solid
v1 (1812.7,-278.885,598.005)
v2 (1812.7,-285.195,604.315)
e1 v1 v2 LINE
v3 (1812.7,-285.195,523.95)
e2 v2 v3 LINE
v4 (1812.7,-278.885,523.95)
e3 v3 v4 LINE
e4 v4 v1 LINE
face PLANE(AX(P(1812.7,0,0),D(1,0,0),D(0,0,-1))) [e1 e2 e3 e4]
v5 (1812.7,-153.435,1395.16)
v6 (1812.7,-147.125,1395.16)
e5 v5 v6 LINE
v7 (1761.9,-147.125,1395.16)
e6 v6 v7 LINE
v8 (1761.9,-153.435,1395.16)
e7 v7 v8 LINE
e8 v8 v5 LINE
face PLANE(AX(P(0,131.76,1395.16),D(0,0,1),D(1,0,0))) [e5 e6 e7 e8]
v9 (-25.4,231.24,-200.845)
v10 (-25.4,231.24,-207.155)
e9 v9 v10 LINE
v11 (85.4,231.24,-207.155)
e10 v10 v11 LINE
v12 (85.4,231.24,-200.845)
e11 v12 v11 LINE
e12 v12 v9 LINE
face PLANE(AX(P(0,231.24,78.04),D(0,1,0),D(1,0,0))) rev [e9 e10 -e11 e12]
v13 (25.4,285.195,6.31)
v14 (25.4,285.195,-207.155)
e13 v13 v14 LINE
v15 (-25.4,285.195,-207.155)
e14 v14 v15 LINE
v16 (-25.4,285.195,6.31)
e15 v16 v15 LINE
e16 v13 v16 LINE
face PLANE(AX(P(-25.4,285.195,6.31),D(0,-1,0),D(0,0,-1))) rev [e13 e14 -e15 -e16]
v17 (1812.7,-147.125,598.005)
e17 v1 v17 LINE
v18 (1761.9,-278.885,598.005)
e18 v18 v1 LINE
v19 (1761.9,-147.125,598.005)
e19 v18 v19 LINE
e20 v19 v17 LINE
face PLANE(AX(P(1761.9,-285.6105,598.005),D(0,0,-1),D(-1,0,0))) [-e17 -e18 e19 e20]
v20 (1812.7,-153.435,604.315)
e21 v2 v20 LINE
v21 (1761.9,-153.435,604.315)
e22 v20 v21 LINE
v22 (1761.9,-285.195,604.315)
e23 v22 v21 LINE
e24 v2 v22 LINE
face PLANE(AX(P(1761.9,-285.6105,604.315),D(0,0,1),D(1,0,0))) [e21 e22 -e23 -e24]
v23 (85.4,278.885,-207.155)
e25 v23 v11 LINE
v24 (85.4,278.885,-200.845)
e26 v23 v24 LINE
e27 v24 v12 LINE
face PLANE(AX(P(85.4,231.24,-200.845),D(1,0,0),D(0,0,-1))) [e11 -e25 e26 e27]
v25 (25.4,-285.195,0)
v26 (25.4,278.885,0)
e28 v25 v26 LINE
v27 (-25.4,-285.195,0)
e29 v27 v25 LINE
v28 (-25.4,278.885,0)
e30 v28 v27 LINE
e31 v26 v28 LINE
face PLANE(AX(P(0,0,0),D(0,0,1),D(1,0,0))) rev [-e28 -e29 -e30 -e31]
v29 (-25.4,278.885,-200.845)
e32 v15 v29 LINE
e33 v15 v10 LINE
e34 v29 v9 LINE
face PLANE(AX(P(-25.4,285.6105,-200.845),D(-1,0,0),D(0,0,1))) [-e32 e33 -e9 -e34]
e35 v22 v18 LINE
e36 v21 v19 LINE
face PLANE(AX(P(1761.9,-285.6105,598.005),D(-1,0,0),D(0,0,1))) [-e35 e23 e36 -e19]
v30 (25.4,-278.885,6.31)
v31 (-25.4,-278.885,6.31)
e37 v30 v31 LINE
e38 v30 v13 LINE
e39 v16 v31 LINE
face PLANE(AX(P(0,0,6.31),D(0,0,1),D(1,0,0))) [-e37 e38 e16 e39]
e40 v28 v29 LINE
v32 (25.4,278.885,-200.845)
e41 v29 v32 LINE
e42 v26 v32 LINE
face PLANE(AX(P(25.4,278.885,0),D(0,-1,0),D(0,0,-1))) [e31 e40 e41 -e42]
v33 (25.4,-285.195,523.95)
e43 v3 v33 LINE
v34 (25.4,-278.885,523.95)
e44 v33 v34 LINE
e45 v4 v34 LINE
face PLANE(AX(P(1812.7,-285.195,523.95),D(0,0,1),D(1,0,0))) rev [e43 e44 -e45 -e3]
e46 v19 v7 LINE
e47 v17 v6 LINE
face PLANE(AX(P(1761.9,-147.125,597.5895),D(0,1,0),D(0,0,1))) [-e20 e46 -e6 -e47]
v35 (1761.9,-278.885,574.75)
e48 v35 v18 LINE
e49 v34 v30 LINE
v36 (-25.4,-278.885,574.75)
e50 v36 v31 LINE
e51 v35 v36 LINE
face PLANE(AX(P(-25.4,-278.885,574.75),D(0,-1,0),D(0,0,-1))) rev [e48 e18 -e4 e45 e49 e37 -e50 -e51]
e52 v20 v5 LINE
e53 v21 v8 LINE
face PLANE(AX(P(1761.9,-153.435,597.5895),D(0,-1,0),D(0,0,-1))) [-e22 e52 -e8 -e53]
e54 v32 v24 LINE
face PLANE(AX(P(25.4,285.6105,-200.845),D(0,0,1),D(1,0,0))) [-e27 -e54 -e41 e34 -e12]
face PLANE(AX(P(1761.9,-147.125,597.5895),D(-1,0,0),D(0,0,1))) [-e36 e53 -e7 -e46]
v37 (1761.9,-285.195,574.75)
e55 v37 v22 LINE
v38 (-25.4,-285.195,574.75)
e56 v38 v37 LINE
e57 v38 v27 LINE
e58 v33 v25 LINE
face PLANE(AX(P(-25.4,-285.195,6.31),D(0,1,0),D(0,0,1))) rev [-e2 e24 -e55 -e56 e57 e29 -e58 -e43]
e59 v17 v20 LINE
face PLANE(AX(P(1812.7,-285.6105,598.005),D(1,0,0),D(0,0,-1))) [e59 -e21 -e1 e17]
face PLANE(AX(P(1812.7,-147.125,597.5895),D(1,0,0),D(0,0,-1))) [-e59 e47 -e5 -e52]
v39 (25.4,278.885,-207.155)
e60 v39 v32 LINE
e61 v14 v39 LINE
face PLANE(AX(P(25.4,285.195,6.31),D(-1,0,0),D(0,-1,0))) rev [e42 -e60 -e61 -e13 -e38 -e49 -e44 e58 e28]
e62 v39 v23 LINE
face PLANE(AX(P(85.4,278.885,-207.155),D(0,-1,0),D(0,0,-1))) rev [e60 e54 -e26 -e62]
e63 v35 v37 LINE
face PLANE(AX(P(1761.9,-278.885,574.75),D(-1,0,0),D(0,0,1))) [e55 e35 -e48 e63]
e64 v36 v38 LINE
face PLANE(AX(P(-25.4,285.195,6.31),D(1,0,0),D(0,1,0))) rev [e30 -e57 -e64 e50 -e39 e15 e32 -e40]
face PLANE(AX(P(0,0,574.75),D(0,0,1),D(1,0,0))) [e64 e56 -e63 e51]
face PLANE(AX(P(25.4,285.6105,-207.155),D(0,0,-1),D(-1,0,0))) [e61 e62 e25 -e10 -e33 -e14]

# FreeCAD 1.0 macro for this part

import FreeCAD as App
import Part
import Sketcher

V = App.Vector


def add_polygon(sketch, points):
    """Adds a closed chain of lines whose ends are joined by coincident constraints."""
    first, n = sketch.GeometryCount, len(points)
    for a, b in zip(points, points[1:] + points[:1]):
        sketch.addGeometry(Part.LineSegment(App.Vector(*a, 0), App.Vector(*b, 0)), False)
    for i in range(n):
        sketch.addConstraint(Sketcher.Constraint("Coincident", first + i, 2, first + (i + 1) % n, 1))

doc = App.newDocument("Part")
params = doc.addObject("Spreadsheet::Sheet", "Params")
for row, (alias, value) in enumerate([
    ("sketch1_width", "50.8 mm"),
    ("sketch1_height", "570.39 mm"),
    ("pad1_length", "6.31 mm"),
    ("sketch2_width", "50.8 mm"),
    ("sketch2_height", "6.31 mm"),
    ("pad2_length", "568.44 mm"),
    ("sketch3_height", "50.8 mm"),
    ("sketch3_width", "6.31 mm"),
    ("pad3_length", "1787.3 mm"),
    ("sketch4_width", "50.8 mm"),
    ("sketch4_height", "6.31 mm"),
    ("sketch5_height", "204 mm"),
    ("sketch5_width", "50.8 mm"),
    ("sketch6_width", "60 mm"),
    ("pad4_length", "6.31 mm"),
    ("sketch7_width", "60 mm"),
    ("sketch7_height", "6.31 mm"),
    ("pocket1_length", "6.31 mm"),
    ("sketch8_width", "50.8 mm"),
    ("sketch8_height", "6.31 mm"),
    ("sketch9_height", "794 mm"),
    ("sketch9_width", "131.76 mm"),
    ("sketch9_height2", "26.41 mm"),
], start=1):
    params.set(f"A{row}", alias)
    params.set(f"B{row}", "=" + value)
    params.setAlias(f"B{row}", alias)

body = doc.addObject("PartDesign::Body", "Body")

# Sketch on XY plane
sketch1 = body.newObject("Sketcher::SketchObject", "Sketch")
sketch1.AttachmentSupport = (doc.getObject("XY_Plane"), [""])
sketch1.MapMode = "FlatFace"
add_polygon(sketch1, [(-25.4, 285.195), (-25.4, -285.195), (25.4, -285.195), (25.4, 285.195)])  # lines 0-3
sketch1.addConstraint([
    Sketcher.Constraint("Vertical", 0),
    Sketcher.Constraint("Horizontal", 1),
    Sketcher.Constraint("Vertical", 2),
    Sketcher.Constraint("Horizontal", 3),
    Sketcher.Constraint("Symmetric", 0, 2, 2, 2, -1, 1),
    Sketcher.Constraint("DistanceX", 1, 1, 1, 2, 50.8),
    Sketcher.Constraint("DistanceY", 0, 2, 0, 1, 570.39),
])
sketch1.setExpression("Constraints[9]", "Params.sketch1_width")
sketch1.setExpression("Constraints[10]", "Params.sketch1_height")
pad1 = body.newObject("PartDesign::Pad", "Pad")
pad1.Profile = sketch1
pad1.setExpression("Length", "Params.pad1_length")

# Sketch on XY plane
sketch2 = body.newObject("Sketcher::SketchObject", "Sketch001")
sketch2.AttachmentSupport = (doc.getObject("XY_Plane"), [""])
sketch2.MapMode = "FlatFace"
sketch2.AttachmentOffset = App.Placement(V(0, 0, 6.31), App.Rotation())
add_polygon(sketch2, [(-25.4, -278.885), (-25.4, -285.195), (25.4, -285.195), (25.4, -278.885)])  # lines 0-3
sketch2.addConstraint([
    Sketcher.Constraint("Vertical", 0),
    Sketcher.Constraint("Horizontal", 1),
    Sketcher.Constraint("Vertical", 2),
    Sketcher.Constraint("Horizontal", 3),
    Sketcher.Constraint("DistanceX", 1, 1, 1, 2, 50.8),
    Sketcher.Constraint("DistanceY", 0, 2, 0, 1, 6.31),
    Sketcher.Constraint("DistanceX", 0, 2, -1, 1, 25.4),
    Sketcher.Constraint("DistanceY", 0, 2, -1, 1, 285.195),
])
sketch2.setExpression("Constraints[8]", "Params.sketch2_width")
sketch2.setExpression("Constraints[9]", "Params.sketch2_height")
pad2 = body.newObject("PartDesign::Pad", "Pad001")
pad2.Profile = sketch2
pad2.setExpression("Length", "Params.pad2_length")

# Sketch on YZ plane
sketch3 = body.newObject("Sketcher::SketchObject", "Sketch002")
sketch3.AttachmentSupport = (doc.getObject("YZ_Plane"), [""])
sketch3.MapMode = "FlatFace"
sketch3.AttachmentOffset = App.Placement(V(0, 0, 25.4), App.Rotation())
add_polygon(sketch3, [(-278.885, 574.75), (-285.195, 574.75), (-285.195, 523.95), (-278.885, 523.95)])  # lines 0-3
sketch3.addConstraint([
    Sketcher.Constraint("Horizontal", 0),
    Sketcher.Constraint("Vertical", 1),
    Sketcher.Constraint("Horizontal", 2),
    Sketcher.Constraint("Vertical", 3),
    Sketcher.Constraint("DistanceY", 1, 2, 1, 1, 50.8),
    Sketcher.Constraint("DistanceX", 0, 2, 0, 1, 6.31),
    Sketcher.Constraint("DistanceY", -1, 1, 0, 2, 574.75),
    Sketcher.Constraint("DistanceX", 0, 2, -1, 1, 285.195),
])
sketch3.setExpression("Constraints[8]", "Params.sketch3_height")
sketch3.setExpression("Constraints[9]", "Params.sketch3_width")
pad3 = body.newObject("PartDesign::Pad", "Pad002")
pad3.Profile = sketch3
pad3.setExpression("Length", "Params.pad3_length")

# Sketch on XY plane
sketch4 = body.newObject("Sketcher::SketchObject", "Sketch003")
sketch4.AttachmentSupport = (doc.getObject("XY_Plane"), [""])
sketch4.MapMode = "FlatFace"
add_polygon(sketch4, [(25.4, 285.195), (25.4, 278.885), (-25.4, 278.885), (-25.4, 285.195)])  # lines 0-3
sketch4.addConstraint([
    Sketcher.Constraint("Vertical", 0),
    Sketcher.Constraint("Horizontal", 1),
    Sketcher.Constraint("Vertical", 2),
    Sketcher.Constraint("Horizontal", 3),
    Sketcher.Constraint("DistanceX", 1, 2, 1, 1, 50.8),
    Sketcher.Constraint("DistanceY", 0, 2, 0, 1, 6.31),
    Sketcher.Constraint("DistanceX", -1, 1, 0, 2, 25.4),
    Sketcher.Constraint("DistanceY", -1, 1, 0, 2, 278.885),
])
sketch4.setExpression("Constraints[8]", "Params.sketch4_width")
sketch4.setExpression("Constraints[9]", "Params.sketch4_height")

# Sketch on YZ plane
sketch5 = body.newObject("Sketcher::SketchObject", "Sketch004")
sketch5.AttachmentSupport = (doc.getObject("YZ_Plane"), [""])
sketch5.MapMode = "FlatFace"
sketch5.addGeometry([
    Part.LineSegment(V(282.04, 0, 0), V(282.04, -204, 0)),
    Part.LineSegment(V(282.04, -204, 0), V(231.24, -204, 0)),
], False)
sketch5.addConstraint([
    Sketcher.Constraint("Coincident", 0, 2, 1, 1),
    Sketcher.Constraint("Vertical", 0),
    Sketcher.Constraint("Horizontal", 1),
    Sketcher.Constraint("PointOnObject", 0, 1, -1),
    Sketcher.Constraint("DistanceY", 0, 2, 0, 1, 204.0),
    Sketcher.Constraint("DistanceX", 1, 2, 1, 1, 50.8),
    Sketcher.Constraint("DistanceX", -1, 1, 0, 1, 282.04),
])
sketch5.setExpression("Constraints[4]", "Params.sketch5_height")
sketch5.setExpression("Constraints[5]", "Params.sketch5_width")
doc.recompute()

additivepipe = body.newObject("PartDesign::AdditivePipe", "AdditivePipe")
additivepipe.Profile = sketch4
additivepipe.Spine = (sketch5, ["Edge1", "Edge2"])
additivepipe.Transition = "Right corner"

# Sketch on XY plane
sketch6 = body.newObject("Sketcher::SketchObject", "Sketch005")
sketch6.AttachmentSupport = (doc.getObject("XY_Plane"), [""])
sketch6.MapMode = "FlatFace"
sketch6.AttachmentOffset = App.Placement(V(0, 0, -207.155), App.Rotation())
add_polygon(sketch6, [(85.4, 285.195), (85.4, 231.24), (25.4, 231.24), (25.4, 285.195)])  # lines 0-3
sketch6.addConstraint([
    Sketcher.Constraint("Vertical", 0),
    Sketcher.Constraint("Horizontal", 1),
    Sketcher.Constraint("Vertical", 2),
    Sketcher.Constraint("Horizontal", 3),
    Sketcher.Constraint("DistanceX", 1, 2, 1, 1, 60.0),
    Sketcher.Constraint("DistanceX", -1, 1, 0, 2, 85.4),
    Sketcher.Constraint("DistanceY", 0, 2, 0, 1, 53.955),
    Sketcher.Constraint("DistanceY", -1, 1, 0, 2, 231.24),
])
sketch6.setExpression("Constraints[8]", "Params.sketch6_width")
pad4 = body.newObject("PartDesign::Pad", "Pad003")
pad4.Profile = sketch6
pad4.setExpression("Length", "Params.pad4_length")

# Sketch on XY plane
sketch7 = body.newObject("Sketcher::SketchObject", "Sketch006")
sketch7.AttachmentSupport = (doc.getObject("XY_Plane"), [""])
sketch7.MapMode = "FlatFace"
sketch7.AttachmentOffset = App.Placement(V(0, 0, -200.845), App.Rotation())
add_polygon(sketch7, [(25.4, 285.195), (25.4, 278.885), (85.4, 278.885), (85.4, 285.195)])  # lines 0-3
sketch7.addConstraint([
    Sketcher.Constraint("Vertical", 0),
    Sketcher.Constraint("Horizontal", 1),
    Sketcher.Constraint("Vertical", 2),
    Sketcher.Constraint("Horizontal", 3),
    Sketcher.Constraint("DistanceX", 1, 1, 1, 2, 60.0),
    Sketcher.Constraint("DistanceY", 0, 2, 0, 1, 6.31),
    Sketcher.Constraint("DistanceX", -1, 1, 0, 2, 25.4),
    Sketcher.Constraint("DistanceY", -1, 1, 0, 2, 278.885),
])
sketch7.setExpression("Constraints[8]", "Params.sketch7_width")
sketch7.setExpression("Constraints[9]", "Params.sketch7_height")
pocket1 = body.newObject("PartDesign::Pocket", "Pocket")
pocket1.Profile = sketch7
pocket1.setExpression("Length", "Params.pocket1_length")

# Sketch on XY plane
sketch8 = body.newObject("Sketcher::SketchObject", "Sketch007")
sketch8.AttachmentSupport = (doc.getObject("XY_Plane"), [""])
sketch8.MapMode = "FlatFace"
sketch8.AttachmentOffset = App.Placement(V(0, 0, 574.75), App.Rotation())
add_polygon(sketch8, [(1761.9, -278.885), (1761.9, -285.195), (1812.7, -285.195), (1812.7, -278.885)])  # lines 0-3
sketch8.addConstraint([
    Sketcher.Constraint("Vertical", 0),
    Sketcher.Constraint("Horizontal", 1),
    Sketcher.Constraint("Vertical", 2),
    Sketcher.Constraint("Horizontal", 3),
    Sketcher.Constraint("DistanceX", 1, 1, 1, 2, 50.8),
    Sketcher.Constraint("DistanceY", 0, 2, 0, 1, 6.31),
    Sketcher.Constraint("DistanceX", -1, 1, 0, 2, 1761.9),
    Sketcher.Constraint("DistanceY", 0, 2, -1, 1, 285.195),
])
sketch8.setExpression("Constraints[8]", "Params.sketch8_width")
sketch8.setExpression("Constraints[9]", "Params.sketch8_height")

# Sketch on YZ plane
sketch9 = body.newObject("Sketcher::SketchObject", "Sketch008")
sketch9.AttachmentSupport = (doc.getObject("YZ_Plane"), [""])
sketch9.MapMode = "FlatFace"
sketch9.AttachmentOffset = App.Placement(V(0, 0, 1787.3), App.Rotation())
sketch9.addGeometry([
    Part.LineSegment(V(-282.04, 574.75, 0), V(-282.04, 601.16, 0)),
    Part.LineSegment(V(-282.04, 601.16, 0), V(-150.28, 601.16, 0)),
    Part.LineSegment(V(-150.28, 601.16, 0), V(-150.28, 1395.16, 0)),
], False)
sketch9.addConstraint([
    Sketcher.Constraint("Coincident", 0, 2, 1, 1),
    Sketcher.Constraint("Coincident", 1, 2, 2, 1),
    Sketcher.Constraint("Vertical", 0),
    Sketcher.Constraint("Horizontal", 1),
    Sketcher.Constraint("Vertical", 2),
    Sketcher.Constraint("DistanceY", 2, 1, 2, 2, 794.0),
    Sketcher.Constraint("DistanceX", 1, 1, 1, 2, 131.76),
    Sketcher.Constraint("DistanceY", 0, 1, 0, 2, 26.41),
    Sketcher.Constraint("DistanceX", 0, 1, -1, 1, 282.04),
    Sketcher.Constraint("DistanceY", -1, 1, 0, 1, 574.75),
])
sketch9.setExpression("Constraints[5]", "Params.sketch9_height")
sketch9.setExpression("Constraints[6]", "Params.sketch9_width")
sketch9.setExpression("Constraints[7]", "Params.sketch9_height2")
doc.recompute()

additivepipe2 = body.newObject("PartDesign::AdditivePipe", "AdditivePipe001")
additivepipe2.Profile = sketch8
additivepipe2.Spine = (sketch9, ["Edge1", "Edge2", "Edge3"])
additivepipe2.Transition = "Right corner"

doc.recompute()
